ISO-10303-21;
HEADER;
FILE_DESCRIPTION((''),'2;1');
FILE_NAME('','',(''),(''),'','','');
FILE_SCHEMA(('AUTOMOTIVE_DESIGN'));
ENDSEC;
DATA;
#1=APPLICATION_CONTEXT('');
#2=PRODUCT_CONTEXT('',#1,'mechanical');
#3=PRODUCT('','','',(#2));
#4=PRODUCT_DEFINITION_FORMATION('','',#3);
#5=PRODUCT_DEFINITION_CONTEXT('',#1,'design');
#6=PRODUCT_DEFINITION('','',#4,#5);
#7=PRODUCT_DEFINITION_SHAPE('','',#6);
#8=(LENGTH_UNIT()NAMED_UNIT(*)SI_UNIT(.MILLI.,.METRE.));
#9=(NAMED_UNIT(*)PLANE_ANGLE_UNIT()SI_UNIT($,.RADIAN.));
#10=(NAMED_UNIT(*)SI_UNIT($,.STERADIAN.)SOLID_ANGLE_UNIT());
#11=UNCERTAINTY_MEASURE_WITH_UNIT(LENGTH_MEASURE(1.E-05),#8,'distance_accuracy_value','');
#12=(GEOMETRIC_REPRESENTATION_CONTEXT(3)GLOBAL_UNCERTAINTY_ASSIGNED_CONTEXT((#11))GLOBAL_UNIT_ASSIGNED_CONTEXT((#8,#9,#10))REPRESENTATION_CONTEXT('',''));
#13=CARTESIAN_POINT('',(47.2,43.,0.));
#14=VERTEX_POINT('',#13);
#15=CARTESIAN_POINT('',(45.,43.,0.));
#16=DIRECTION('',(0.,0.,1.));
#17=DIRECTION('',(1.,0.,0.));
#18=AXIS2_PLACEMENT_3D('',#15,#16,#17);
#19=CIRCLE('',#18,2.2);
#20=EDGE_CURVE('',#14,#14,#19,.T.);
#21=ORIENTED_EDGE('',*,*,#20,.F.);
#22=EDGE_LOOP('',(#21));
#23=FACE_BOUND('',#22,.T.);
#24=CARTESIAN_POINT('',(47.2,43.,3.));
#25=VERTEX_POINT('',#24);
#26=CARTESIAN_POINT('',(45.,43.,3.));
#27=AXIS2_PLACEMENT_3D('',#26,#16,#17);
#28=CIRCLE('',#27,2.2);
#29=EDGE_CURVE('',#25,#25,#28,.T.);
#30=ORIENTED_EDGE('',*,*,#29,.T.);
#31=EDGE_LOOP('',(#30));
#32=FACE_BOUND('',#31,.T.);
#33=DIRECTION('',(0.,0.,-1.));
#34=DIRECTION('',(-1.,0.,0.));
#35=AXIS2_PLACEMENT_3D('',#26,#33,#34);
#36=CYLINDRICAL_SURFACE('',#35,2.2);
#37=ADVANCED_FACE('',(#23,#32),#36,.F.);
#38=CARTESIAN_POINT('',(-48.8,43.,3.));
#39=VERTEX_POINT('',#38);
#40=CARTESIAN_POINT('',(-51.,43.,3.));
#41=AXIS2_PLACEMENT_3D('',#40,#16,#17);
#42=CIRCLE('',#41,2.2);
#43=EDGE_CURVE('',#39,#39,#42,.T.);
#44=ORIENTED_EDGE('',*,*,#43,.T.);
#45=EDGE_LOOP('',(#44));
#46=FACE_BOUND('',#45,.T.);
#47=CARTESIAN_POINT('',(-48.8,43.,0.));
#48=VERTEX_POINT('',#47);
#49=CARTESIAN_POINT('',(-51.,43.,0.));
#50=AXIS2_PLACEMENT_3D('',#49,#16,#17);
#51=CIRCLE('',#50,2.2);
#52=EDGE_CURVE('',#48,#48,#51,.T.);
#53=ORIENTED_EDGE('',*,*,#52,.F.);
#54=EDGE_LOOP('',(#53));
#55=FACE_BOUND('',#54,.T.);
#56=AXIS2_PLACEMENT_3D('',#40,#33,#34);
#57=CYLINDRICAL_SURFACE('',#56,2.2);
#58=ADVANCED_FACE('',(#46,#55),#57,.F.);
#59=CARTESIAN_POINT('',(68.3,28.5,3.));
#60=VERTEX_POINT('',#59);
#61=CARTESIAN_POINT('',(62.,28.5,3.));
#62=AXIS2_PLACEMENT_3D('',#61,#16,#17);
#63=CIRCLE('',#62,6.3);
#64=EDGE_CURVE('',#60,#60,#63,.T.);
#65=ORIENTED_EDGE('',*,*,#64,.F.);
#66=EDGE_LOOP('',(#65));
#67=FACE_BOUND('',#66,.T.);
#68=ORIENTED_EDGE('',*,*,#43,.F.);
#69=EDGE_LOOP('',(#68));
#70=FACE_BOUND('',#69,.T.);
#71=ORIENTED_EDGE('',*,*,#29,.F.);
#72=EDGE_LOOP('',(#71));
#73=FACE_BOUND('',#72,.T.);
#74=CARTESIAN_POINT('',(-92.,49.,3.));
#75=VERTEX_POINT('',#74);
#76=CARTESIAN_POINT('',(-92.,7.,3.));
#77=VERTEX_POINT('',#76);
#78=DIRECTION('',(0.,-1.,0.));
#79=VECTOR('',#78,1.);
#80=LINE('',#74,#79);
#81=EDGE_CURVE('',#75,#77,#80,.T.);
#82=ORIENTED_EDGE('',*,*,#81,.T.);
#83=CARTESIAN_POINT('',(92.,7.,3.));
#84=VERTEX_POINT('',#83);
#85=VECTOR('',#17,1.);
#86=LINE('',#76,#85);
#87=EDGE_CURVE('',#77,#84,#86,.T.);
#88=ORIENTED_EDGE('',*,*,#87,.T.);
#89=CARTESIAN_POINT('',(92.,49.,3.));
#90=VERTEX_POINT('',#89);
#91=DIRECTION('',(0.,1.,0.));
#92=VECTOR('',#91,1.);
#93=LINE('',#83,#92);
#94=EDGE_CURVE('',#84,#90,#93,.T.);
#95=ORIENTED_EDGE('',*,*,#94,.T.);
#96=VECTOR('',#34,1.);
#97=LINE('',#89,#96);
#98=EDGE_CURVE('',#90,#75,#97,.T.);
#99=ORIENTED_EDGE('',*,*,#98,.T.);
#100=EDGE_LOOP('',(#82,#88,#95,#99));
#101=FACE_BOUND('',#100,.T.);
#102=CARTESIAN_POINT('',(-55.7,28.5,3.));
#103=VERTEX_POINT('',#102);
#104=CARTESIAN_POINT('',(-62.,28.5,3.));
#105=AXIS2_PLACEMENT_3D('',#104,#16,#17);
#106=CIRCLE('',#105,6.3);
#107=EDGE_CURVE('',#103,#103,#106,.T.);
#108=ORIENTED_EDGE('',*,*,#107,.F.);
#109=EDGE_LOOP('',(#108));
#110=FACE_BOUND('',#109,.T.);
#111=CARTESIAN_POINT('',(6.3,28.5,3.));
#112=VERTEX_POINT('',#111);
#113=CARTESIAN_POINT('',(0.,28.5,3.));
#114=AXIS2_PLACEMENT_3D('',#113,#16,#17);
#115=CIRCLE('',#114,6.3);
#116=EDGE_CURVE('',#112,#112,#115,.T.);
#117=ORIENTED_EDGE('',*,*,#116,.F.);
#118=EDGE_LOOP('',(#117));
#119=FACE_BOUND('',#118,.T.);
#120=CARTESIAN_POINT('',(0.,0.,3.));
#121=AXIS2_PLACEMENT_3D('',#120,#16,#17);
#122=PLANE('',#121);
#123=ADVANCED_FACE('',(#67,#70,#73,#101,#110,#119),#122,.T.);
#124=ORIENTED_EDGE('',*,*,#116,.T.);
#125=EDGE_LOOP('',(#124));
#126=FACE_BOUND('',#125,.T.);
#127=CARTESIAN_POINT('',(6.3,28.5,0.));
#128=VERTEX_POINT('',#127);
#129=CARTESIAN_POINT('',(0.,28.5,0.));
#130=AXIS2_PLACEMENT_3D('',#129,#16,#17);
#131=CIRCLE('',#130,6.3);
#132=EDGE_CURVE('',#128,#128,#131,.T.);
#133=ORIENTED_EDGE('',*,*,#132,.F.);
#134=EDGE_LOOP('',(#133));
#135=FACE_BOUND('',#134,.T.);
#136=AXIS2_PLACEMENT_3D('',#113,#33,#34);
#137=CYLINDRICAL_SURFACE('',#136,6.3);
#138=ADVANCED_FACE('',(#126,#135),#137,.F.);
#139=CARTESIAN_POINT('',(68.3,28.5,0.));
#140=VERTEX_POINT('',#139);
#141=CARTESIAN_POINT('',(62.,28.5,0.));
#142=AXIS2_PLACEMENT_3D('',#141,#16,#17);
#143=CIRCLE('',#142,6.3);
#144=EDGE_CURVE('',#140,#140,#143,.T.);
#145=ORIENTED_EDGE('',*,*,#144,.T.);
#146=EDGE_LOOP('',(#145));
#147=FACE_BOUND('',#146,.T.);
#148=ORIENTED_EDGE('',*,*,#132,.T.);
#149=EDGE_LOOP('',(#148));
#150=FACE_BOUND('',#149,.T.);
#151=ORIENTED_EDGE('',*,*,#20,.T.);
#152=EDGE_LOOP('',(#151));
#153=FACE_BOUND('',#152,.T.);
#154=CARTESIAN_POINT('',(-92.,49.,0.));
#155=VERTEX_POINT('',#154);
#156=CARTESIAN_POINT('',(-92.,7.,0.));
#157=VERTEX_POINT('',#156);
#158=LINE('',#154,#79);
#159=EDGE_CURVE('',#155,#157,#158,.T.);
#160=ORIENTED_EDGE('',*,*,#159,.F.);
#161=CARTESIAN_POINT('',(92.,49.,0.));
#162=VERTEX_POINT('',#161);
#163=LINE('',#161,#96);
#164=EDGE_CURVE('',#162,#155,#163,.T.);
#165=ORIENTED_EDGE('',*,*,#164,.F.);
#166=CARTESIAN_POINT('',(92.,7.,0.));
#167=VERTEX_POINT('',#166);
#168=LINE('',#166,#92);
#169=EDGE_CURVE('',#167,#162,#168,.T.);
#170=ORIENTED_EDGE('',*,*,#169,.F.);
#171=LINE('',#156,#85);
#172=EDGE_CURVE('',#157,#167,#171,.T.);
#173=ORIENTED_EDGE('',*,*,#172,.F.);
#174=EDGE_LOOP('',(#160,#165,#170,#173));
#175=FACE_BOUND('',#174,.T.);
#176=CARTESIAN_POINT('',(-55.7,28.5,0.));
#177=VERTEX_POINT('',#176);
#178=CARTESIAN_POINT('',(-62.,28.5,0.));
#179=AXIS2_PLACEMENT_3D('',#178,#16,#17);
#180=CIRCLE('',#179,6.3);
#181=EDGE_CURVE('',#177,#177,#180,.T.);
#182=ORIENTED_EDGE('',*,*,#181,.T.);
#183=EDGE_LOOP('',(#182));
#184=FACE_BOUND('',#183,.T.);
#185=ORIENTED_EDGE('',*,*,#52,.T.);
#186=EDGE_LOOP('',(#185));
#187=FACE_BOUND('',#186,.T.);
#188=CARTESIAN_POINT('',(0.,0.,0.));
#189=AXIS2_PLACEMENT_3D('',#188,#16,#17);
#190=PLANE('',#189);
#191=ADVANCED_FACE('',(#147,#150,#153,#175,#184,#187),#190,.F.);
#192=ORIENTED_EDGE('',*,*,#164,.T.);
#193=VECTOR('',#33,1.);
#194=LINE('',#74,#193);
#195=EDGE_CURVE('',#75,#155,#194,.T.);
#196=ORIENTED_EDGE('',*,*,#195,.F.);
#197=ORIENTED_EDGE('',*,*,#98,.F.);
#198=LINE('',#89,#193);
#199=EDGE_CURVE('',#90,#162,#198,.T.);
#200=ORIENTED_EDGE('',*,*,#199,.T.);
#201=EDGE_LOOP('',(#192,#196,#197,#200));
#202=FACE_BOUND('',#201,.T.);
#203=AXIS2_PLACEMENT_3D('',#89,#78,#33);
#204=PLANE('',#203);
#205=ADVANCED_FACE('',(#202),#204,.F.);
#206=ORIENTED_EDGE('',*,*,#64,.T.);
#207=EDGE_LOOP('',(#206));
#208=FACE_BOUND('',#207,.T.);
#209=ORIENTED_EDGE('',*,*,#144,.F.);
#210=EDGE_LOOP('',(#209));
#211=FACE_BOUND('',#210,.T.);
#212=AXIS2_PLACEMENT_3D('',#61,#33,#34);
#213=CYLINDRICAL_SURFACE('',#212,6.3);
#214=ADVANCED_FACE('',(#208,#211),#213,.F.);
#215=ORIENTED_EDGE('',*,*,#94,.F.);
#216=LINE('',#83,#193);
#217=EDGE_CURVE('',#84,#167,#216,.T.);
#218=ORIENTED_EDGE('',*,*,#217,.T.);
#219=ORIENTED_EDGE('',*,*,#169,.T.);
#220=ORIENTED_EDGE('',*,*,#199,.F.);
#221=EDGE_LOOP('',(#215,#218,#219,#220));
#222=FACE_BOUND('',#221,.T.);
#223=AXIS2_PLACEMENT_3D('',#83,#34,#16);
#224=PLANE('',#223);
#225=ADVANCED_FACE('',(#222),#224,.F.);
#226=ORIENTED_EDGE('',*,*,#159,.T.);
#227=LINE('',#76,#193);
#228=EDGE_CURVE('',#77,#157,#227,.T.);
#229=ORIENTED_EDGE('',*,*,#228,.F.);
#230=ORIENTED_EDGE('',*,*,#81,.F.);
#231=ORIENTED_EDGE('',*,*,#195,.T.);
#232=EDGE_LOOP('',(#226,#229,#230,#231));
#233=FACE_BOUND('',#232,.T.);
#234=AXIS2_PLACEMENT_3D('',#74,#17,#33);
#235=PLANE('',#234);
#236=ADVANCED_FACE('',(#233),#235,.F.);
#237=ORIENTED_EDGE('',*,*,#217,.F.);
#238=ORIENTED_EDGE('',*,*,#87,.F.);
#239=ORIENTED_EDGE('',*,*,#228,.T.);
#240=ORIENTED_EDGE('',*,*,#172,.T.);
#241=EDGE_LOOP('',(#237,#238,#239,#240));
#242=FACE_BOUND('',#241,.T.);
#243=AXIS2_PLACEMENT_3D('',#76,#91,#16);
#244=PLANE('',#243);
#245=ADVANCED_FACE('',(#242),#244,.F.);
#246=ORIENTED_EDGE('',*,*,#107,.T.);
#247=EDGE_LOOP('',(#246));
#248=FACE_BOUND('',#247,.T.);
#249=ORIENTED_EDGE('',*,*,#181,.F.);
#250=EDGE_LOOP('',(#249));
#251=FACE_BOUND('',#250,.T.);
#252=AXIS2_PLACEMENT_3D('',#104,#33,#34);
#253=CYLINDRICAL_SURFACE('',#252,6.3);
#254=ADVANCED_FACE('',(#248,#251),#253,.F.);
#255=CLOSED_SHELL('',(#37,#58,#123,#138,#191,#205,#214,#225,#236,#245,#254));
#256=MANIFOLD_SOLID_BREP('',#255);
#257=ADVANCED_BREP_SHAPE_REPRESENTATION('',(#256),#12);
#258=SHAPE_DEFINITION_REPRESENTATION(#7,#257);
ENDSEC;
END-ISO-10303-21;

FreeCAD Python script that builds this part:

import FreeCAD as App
import Part
import Sketcher
Q = App.Units.Quantity

doc = App.newDocument("Part")
body = doc.addObject("PartDesign::Body", "Body")

sketch1 = body.newObject("Sketcher::SketchObject", "Sketch")
sketch1.AttachmentSupport = (doc.getObject("XY_Plane"), [""])
sketch1.MapMode = "FlatFace"
sketch1.addGeometry([
    Part.LineSegment(App.Vector(-92, 49, 0), App.Vector(-92, 7, 0)),
    Part.LineSegment(App.Vector(-92, 7, 0), App.Vector(92, 7, 0)),
    Part.LineSegment(App.Vector(92, 7, 0), App.Vector(92, 49, 0)),
    Part.LineSegment(App.Vector(92, 49, 0), App.Vector(-92, 49, 0)),
    Part.Circle(App.Vector(-62, 28.5, 0), App.Vector(0, 0, 1), 6.3),
    Part.Circle(App.Vector(0, 28.5, 0), App.Vector(0, 0, 1), 6.3),
    Part.Circle(App.Vector(62, 28.5, 0), App.Vector(0, 0, 1), 6.3),
    Part.Circle(App.Vector(-51, 43, 0), App.Vector(0, 0, 1), 2.2),
    Part.Circle(App.Vector(45, 43, 0), App.Vector(0, 0, 1), 2.2),
], False)
sketch1.addConstraint([
    Sketcher.Constraint("Coincident", 0, 2, 1, 1),
    Sketcher.Constraint("Coincident", 1, 2, 2, 1),
    Sketcher.Constraint("Coincident", 2, 2, 3, 1),
    Sketcher.Constraint("Coincident", 3, 2, 0, 1),
    Sketcher.Constraint("Vertical", 0),
    Sketcher.Constraint("Horizontal", 1),
    Sketcher.Constraint("Vertical", 2),
    Sketcher.Constraint("Horizontal", 3),
    Sketcher.Constraint("Equal", 4, 5),
    Sketcher.Constraint("Equal", 5, 6),
    Sketcher.Constraint("Equal", 7, 8),
    Sketcher.Constraint("Symmetric", 4, 3, 6, 3, -2),
    Sketcher.Constraint("PointOnObject", 5, 3, -2),
    Sketcher.Constraint("Horizontal", 4, 3, 5, 3),
    Sketcher.Constraint("Horizontal", 7, 3, 8, 3),
    Sketcher.Constraint("Diameter", 4, Q("12.6 mm")),
    Sketcher.Constraint("Diameter", 7, Q("4.4 mm")),
    Sketcher.Constraint("DistanceX", 1, 1, 1, 2, Q("184 mm")),
    Sketcher.Constraint("DistanceY", 0, 2, 0, 1, Q("42 mm")),
    Sketcher.Constraint("DistanceX", 4, 3, -1, 1, Q("62 mm")),
    Sketcher.Constraint("DistanceX", 7, 3, -1, 1, Q("51 mm")),
    Sketcher.Constraint("DistanceY", -1, 1, 7, 3, Q("43 mm")),
    Sketcher.Constraint("DistanceX", -1, 1, 8, 3, Q("45 mm")),
    Sketcher.Constraint("DistanceX", 0, 2, -1, 1, Q("92 mm")),
    Sketcher.Constraint("DistanceY", -1, 1, 0, 2, Q("7 mm")),
    Sketcher.Constraint("DistanceY", -1, 1, 4, 3, Q("28.5 mm")),
])
pad1 = body.newObject("PartDesign::Pad", "Pad")
pad1.Profile = sketch1
pad1.Length = 3

doc.recompute()
